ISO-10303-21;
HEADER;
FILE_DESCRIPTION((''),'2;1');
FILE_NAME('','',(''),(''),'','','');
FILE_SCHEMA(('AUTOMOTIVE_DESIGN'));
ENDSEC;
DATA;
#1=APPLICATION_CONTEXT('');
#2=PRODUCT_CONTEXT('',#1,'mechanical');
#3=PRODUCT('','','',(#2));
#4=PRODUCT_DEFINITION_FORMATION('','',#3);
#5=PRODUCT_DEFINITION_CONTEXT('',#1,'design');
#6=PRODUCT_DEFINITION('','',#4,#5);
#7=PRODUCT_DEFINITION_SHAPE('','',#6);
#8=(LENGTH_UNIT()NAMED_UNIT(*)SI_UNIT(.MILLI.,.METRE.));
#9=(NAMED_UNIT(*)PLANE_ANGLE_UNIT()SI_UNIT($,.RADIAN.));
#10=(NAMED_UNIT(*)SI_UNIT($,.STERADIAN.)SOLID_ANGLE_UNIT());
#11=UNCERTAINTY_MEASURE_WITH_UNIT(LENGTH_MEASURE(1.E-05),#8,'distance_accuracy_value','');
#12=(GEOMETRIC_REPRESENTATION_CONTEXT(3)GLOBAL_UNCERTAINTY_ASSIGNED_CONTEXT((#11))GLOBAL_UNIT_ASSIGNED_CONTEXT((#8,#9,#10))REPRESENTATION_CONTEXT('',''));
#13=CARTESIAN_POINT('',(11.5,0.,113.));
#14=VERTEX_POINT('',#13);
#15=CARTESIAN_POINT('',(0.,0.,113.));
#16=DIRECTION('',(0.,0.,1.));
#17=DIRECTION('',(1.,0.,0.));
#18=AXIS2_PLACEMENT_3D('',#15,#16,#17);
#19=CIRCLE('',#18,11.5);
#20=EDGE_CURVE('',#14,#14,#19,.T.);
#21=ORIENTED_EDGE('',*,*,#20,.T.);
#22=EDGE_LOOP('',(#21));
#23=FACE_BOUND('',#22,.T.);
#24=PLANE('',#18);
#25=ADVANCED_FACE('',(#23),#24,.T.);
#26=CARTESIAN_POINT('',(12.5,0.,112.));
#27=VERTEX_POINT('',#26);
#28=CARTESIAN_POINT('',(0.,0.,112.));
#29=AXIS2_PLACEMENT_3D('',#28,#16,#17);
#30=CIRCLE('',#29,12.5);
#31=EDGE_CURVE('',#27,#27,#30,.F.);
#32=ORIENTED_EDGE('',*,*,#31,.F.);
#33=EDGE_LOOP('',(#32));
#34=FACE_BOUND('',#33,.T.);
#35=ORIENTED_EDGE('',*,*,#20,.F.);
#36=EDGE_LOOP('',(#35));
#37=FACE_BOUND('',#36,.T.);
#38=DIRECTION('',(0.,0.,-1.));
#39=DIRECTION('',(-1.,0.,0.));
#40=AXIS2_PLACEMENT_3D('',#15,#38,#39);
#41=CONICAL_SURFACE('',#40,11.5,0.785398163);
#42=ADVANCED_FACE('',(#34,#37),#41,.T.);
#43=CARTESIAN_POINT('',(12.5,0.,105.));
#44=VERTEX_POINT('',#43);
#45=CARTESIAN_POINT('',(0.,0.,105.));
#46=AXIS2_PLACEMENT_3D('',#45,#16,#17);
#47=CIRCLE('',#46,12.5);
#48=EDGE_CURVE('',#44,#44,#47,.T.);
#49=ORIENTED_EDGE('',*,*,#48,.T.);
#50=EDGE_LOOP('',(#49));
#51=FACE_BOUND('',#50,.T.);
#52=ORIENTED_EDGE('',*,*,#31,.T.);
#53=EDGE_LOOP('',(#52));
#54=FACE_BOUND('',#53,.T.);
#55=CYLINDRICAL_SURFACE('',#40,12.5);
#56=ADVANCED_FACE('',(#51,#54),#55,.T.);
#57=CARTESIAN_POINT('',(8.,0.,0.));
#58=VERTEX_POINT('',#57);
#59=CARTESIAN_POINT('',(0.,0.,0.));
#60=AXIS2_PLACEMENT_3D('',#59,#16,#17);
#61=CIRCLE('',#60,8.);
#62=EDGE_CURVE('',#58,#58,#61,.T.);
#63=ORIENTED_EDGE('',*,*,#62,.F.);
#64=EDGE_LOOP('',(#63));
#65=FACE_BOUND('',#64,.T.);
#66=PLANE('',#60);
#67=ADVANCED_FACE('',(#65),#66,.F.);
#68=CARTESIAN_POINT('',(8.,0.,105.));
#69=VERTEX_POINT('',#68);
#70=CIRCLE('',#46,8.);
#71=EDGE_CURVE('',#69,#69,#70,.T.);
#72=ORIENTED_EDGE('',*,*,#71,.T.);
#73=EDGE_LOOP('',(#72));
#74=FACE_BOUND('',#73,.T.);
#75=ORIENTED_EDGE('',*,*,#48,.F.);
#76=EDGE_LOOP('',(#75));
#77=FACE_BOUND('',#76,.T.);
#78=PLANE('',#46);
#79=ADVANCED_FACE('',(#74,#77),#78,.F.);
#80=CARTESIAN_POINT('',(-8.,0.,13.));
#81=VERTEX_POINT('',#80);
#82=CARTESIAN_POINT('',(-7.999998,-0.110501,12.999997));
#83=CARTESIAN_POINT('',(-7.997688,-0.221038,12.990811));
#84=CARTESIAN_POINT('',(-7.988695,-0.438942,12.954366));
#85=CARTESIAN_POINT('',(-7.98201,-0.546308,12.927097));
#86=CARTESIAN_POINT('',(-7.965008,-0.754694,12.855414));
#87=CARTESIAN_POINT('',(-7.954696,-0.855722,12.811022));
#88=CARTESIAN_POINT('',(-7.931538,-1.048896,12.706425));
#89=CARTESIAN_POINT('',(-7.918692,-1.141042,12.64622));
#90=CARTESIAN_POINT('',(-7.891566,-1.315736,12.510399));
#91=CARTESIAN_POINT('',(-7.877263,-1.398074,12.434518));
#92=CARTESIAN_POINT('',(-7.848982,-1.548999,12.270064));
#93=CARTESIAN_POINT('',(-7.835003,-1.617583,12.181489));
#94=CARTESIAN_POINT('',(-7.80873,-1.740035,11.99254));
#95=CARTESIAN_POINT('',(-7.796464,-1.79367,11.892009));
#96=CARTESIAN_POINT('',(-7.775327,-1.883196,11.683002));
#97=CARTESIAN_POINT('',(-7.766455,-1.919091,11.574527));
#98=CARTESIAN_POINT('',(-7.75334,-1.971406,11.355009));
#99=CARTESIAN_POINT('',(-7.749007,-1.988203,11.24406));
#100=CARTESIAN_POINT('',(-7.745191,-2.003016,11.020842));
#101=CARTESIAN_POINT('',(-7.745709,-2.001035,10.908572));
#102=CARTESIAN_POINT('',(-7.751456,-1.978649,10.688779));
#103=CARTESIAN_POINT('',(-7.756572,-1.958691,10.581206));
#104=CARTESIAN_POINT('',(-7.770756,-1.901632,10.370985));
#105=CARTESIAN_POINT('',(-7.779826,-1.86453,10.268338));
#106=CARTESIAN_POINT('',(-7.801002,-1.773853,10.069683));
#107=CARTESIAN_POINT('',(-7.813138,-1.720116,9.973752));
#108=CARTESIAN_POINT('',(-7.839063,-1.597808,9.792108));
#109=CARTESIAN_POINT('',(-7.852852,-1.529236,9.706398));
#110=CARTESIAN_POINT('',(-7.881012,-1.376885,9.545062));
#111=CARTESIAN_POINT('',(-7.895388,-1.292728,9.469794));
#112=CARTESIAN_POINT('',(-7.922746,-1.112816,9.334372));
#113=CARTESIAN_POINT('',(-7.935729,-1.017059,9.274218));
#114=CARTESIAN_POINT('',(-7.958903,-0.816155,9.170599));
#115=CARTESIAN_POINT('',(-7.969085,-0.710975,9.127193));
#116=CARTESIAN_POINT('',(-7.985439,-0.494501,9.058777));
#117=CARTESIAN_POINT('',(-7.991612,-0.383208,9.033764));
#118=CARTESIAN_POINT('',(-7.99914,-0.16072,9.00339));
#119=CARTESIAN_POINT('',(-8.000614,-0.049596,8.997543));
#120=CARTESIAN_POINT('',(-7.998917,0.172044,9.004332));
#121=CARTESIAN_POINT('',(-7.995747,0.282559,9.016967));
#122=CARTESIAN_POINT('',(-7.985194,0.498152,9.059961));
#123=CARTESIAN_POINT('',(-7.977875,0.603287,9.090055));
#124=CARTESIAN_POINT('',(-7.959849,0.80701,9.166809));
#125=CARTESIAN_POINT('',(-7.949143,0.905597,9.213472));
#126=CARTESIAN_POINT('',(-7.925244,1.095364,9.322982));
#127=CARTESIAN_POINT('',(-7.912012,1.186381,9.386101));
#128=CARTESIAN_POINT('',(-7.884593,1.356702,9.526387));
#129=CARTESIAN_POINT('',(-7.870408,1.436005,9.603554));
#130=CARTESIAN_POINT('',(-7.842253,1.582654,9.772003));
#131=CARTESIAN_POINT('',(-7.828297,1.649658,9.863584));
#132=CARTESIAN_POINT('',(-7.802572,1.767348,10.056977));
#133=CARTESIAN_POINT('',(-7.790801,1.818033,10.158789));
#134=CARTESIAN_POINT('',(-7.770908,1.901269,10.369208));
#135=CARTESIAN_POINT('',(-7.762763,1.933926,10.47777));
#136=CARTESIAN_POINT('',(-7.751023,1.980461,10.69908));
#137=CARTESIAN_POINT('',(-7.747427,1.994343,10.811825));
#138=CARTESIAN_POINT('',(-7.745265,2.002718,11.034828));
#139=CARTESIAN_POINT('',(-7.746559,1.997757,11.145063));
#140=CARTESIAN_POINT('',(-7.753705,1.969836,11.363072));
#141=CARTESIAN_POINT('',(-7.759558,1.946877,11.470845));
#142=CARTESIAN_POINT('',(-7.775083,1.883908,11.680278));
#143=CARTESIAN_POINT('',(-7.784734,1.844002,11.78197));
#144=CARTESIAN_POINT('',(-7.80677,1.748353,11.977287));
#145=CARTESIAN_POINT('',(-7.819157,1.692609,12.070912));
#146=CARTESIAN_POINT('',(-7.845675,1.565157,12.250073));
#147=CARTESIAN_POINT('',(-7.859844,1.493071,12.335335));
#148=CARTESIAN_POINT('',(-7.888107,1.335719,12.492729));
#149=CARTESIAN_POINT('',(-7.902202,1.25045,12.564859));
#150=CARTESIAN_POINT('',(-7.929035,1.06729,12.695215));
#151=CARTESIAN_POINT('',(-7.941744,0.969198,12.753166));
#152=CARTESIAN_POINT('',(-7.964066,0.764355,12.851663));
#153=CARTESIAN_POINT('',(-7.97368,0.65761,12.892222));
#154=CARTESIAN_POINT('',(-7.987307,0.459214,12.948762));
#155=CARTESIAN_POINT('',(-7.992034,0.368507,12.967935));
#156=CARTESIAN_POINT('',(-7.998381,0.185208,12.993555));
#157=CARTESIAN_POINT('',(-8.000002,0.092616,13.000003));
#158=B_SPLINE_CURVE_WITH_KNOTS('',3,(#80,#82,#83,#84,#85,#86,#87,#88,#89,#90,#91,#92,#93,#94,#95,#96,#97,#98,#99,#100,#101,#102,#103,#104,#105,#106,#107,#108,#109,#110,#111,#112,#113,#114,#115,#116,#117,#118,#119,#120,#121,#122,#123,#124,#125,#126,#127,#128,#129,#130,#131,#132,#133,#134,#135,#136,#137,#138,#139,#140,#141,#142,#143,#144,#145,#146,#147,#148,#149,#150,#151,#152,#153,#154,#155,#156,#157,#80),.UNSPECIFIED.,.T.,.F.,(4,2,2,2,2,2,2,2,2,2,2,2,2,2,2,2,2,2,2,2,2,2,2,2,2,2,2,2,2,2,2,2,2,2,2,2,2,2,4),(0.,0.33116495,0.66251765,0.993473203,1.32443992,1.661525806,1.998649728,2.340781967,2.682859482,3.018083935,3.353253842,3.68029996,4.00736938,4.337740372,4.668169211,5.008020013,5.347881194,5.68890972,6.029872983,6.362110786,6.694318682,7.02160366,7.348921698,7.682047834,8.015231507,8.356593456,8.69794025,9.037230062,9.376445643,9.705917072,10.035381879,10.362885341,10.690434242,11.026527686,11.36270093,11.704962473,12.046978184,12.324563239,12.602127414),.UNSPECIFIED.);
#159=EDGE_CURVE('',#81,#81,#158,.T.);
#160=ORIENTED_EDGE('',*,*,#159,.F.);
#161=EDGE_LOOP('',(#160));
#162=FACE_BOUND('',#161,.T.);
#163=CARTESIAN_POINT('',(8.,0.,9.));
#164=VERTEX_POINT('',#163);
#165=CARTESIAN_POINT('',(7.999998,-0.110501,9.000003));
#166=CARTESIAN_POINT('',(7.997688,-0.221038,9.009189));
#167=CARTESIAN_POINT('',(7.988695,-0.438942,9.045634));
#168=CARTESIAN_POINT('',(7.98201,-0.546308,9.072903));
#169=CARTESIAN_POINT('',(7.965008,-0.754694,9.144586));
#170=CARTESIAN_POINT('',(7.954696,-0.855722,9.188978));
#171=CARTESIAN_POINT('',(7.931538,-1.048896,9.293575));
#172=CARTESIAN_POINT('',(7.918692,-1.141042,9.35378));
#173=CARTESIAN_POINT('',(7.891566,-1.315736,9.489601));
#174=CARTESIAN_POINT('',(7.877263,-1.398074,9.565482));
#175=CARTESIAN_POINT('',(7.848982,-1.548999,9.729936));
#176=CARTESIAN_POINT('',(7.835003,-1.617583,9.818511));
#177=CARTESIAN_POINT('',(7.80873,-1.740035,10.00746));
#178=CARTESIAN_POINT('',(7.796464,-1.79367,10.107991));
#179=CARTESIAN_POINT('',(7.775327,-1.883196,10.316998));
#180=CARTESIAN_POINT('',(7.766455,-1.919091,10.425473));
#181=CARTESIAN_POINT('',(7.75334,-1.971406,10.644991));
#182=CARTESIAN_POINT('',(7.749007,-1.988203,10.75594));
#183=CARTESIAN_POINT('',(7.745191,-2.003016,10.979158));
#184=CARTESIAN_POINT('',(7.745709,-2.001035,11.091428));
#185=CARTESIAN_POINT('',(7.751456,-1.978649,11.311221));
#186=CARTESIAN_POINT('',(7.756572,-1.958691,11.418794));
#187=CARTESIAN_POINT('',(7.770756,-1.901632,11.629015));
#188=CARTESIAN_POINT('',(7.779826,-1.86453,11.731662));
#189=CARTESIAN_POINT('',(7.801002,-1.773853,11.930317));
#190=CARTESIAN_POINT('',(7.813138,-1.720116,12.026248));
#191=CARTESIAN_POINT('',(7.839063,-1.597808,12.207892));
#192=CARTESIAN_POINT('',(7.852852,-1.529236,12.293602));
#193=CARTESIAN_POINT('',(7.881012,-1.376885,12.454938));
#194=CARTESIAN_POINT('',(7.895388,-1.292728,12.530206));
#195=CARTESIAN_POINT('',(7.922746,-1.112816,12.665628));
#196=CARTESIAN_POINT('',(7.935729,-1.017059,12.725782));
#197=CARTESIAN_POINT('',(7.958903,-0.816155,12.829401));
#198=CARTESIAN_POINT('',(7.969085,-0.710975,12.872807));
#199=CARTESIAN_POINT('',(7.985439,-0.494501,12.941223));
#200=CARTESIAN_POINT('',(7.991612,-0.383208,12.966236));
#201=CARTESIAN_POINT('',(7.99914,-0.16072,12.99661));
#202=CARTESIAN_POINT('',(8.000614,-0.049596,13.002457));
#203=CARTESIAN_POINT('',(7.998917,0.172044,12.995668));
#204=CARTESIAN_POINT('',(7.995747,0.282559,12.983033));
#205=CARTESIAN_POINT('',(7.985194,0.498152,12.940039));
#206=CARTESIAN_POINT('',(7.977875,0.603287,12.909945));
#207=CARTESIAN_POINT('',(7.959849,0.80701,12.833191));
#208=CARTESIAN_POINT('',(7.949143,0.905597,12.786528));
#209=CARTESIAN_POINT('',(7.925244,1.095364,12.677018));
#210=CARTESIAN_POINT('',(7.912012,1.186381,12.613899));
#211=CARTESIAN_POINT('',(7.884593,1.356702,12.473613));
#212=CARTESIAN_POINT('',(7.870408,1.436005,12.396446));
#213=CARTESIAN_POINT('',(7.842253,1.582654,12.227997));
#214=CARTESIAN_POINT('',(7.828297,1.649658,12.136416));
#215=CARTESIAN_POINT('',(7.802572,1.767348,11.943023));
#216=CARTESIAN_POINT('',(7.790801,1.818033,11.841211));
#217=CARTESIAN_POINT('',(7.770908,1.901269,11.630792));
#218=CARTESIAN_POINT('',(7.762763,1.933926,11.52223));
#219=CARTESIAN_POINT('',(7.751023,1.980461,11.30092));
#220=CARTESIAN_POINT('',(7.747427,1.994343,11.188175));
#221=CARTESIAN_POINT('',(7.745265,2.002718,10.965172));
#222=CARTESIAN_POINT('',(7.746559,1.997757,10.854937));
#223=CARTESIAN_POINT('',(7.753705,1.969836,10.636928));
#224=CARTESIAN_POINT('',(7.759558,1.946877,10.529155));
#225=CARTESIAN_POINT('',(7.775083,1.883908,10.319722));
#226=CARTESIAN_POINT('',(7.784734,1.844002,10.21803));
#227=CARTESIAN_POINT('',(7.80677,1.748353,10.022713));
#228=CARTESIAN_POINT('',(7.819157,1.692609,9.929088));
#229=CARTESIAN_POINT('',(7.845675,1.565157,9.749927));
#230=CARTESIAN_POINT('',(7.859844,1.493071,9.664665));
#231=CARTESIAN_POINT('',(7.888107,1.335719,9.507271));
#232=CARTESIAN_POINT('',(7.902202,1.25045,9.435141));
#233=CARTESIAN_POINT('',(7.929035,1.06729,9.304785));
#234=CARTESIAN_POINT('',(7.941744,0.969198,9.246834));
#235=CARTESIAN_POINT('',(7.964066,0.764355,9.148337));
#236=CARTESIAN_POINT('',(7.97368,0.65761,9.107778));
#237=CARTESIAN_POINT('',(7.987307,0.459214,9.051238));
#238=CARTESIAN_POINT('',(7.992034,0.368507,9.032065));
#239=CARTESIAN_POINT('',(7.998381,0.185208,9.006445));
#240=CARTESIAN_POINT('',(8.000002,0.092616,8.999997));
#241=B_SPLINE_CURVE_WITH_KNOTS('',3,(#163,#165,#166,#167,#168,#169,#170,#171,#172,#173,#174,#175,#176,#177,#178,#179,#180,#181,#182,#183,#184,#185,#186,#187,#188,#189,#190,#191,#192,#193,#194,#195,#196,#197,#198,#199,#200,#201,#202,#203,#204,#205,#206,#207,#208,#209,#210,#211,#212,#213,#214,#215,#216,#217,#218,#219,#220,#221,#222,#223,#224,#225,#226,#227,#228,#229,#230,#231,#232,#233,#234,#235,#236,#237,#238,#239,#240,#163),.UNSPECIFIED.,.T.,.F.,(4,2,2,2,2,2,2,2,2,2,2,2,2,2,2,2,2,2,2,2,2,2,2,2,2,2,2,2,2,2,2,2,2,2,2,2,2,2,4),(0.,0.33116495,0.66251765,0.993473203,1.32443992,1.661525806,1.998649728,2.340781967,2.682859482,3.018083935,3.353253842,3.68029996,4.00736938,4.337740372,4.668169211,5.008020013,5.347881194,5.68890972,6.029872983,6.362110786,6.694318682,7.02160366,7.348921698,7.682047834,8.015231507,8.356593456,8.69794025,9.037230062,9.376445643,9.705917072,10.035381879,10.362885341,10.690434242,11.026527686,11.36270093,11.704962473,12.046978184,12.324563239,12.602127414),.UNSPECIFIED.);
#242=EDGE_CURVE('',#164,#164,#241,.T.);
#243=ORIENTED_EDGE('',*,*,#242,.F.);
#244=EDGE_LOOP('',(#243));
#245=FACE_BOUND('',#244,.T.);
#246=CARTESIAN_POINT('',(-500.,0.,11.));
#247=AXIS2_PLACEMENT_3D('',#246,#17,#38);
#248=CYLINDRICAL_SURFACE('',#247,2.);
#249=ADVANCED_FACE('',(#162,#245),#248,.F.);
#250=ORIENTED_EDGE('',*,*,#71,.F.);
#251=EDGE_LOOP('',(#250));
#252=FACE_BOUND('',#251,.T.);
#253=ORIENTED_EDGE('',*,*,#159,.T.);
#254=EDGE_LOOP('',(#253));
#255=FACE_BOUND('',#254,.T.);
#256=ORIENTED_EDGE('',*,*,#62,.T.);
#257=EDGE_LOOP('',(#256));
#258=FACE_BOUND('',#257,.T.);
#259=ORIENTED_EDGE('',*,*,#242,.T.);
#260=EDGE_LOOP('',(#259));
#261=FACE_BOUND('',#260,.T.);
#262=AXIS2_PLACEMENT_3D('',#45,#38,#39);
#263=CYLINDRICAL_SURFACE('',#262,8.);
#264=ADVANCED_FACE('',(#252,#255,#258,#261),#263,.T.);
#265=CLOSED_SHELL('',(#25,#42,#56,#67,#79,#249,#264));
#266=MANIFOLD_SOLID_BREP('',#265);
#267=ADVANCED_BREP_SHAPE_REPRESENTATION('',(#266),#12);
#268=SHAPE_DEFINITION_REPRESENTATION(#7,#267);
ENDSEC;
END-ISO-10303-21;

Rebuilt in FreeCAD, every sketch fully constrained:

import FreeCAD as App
import Part
import Sketcher
from FreeCAD import Vector
Q = App.Units.Quantity


def edges_at(feature, points):
    """Names of the edges that pass closest to the given points."""
    edges = feature.Shape.Edges
    near = lambda p: min(range(len(edges)), key=lambda i: edges[i].distToShape(Part.Vertex(*p))[0])
    return sorted({f"Edge{near(p) + 1}" for p in points})

doc = App.newDocument("Part")
body = doc.addObject("PartDesign::Body", "Body")

sketch1 = body.newObject("Sketcher::SketchObject", "Sketch")
sketch1.AttachmentSupport = (doc.getObject("XY_Plane"), [""])
sketch1.MapMode = "FlatFace"
sketch1.addGeometry(Part.Circle(Vector(0, 0, 0), Vector(0, 0, 1), 8), False)
sketch1.addConstraint(Sketcher.Constraint("Coincident", 0, 3, -1, 1))
sketch1.addConstraint(Sketcher.Constraint("Diameter", 0, Q("16 mm")))
pad1 = body.newObject("PartDesign::Pad", "Pad")
pad1.Profile = sketch1
pad1.Length = 105

sketch2 = body.newObject("Sketcher::SketchObject", "Sketch001")
sketch2.AttachmentSupport = (doc.getObject("XY_Plane"), [""])
sketch2.MapMode = "FlatFace"
sketch2.AttachmentOffset = App.Placement(Vector(0, 0, 105), App.Rotation())
sketch2.addGeometry(Part.Circle(Vector(0, 0, 0), Vector(0, 0, 1), 12), False)
sketch2.addConstraint(Sketcher.Constraint("Coincident", 0, 3, -1, 1))
sketch2.addConstraint(Sketcher.Constraint("Diameter", 0, Q("25 mm")))
pad2 = body.newObject("PartDesign::Pad", "Pad001")
pad2.Profile = sketch2
pad2.Length = 8
doc.recompute()

chamfer = body.newObject("PartDesign::Chamfer", "Chamfer")
chamfer.Base = (pad2, edges_at(pad2, [(-12.5, 0, 113)]))
chamfer.Size = 1

sketch3 = body.newObject("Sketcher::SketchObject", "Sketch002")
sketch3.AttachmentSupport = (doc.getObject("YZ_Plane"), [""])
sketch3.MapMode = "FlatFace"
sketch3.addGeometry(Part.Circle(Vector(0, 11, 0), Vector(0, 0, 1), 2), False)
sketch3.addConstraint(Sketcher.Constraint("PointOnObject", 0, 3, -2))
sketch3.addConstraint(Sketcher.Constraint("Diameter", 0, Q("4 mm")))
sketch3.addConstraint(Sketcher.Constraint("DistanceY", -1, 1, 0, 3, Q("11 mm")))
pocket1 = body.newObject("PartDesign::Pocket", "Pocket")
pocket1.Profile = sketch3
pocket1.Length = 1000
pocket1.Midplane = True

doc.recompute()
